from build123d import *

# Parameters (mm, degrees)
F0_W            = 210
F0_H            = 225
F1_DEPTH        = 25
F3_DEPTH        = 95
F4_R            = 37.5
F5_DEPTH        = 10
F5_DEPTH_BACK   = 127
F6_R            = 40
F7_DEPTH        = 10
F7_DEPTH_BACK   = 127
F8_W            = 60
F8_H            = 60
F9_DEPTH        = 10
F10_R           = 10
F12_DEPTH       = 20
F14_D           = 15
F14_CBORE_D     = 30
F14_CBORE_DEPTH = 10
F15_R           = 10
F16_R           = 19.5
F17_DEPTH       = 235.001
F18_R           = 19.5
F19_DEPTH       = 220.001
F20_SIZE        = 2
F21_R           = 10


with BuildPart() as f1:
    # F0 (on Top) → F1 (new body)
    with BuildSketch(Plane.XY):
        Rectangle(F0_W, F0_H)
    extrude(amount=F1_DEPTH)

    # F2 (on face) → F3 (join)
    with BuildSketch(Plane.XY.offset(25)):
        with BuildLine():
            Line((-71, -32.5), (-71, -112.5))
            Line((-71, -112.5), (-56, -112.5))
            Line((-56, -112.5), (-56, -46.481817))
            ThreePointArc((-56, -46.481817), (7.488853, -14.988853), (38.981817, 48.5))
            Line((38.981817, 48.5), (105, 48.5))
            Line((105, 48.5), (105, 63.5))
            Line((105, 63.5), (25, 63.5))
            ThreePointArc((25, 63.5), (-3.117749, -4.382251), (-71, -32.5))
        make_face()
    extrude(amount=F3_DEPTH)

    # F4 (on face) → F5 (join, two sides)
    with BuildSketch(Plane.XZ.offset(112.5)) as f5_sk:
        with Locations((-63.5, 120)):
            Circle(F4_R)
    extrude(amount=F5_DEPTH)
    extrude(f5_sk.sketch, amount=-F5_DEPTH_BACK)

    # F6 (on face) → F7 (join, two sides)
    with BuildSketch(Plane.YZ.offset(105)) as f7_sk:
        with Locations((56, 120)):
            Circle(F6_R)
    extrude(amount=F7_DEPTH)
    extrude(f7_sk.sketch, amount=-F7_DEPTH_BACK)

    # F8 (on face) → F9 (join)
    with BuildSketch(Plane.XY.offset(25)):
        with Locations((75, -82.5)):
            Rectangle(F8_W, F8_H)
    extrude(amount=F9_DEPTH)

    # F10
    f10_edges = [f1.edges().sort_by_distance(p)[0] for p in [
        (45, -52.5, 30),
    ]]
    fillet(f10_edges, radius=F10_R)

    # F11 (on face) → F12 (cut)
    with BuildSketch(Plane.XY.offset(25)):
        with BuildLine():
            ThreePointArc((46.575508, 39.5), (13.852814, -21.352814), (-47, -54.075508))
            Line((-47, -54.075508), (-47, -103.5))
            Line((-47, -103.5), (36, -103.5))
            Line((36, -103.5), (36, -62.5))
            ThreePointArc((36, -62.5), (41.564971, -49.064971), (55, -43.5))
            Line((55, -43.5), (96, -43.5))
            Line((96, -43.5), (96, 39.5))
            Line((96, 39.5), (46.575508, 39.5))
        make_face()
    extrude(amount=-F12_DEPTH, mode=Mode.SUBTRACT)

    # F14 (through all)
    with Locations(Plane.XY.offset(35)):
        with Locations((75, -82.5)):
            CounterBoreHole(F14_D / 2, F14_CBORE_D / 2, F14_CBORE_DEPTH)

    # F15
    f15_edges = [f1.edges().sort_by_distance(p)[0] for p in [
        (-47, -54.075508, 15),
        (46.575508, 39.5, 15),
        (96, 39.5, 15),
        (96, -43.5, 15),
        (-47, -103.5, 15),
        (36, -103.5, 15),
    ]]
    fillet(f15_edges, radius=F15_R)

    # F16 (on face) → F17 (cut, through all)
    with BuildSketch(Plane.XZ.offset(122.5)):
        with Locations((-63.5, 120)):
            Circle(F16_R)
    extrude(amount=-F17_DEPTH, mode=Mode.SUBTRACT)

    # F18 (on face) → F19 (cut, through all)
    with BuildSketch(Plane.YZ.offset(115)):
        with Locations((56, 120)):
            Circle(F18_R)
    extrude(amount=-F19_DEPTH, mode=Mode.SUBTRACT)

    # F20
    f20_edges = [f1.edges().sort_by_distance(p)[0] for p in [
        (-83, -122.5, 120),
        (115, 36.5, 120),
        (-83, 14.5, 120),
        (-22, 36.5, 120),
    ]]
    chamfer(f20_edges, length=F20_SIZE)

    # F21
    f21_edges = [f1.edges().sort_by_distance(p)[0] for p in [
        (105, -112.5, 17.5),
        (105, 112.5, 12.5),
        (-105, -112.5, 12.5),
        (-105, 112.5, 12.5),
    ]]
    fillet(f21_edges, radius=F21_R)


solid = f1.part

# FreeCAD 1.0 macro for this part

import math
import FreeCAD as App
import Part
import Sketcher
Q = App.Units.Quantity


def edges_at(feature, points):
    """Names of the edges that pass closest to the given points."""
    edges = feature.Shape.Edges
    near = lambda p: min(range(len(edges)), key=lambda i: edges[i].distToShape(Part.Vertex(*p))[0])
    return sorted({f"Edge{near(p) + 1}" for p in points})

doc = App.newDocument("Part")
body = doc.addObject("PartDesign::Body", "Body")

# Sketch on XY plane
sketch1 = doc.addObject("Sketcher::SketchObject", "Sketch")
body.addObject(sketch1)
sketch1.AttachmentSupport = (doc.XY_Plane, [""])
sketch1.MapMode = "FlatFace"
sketch1.addGeometry([
    Part.LineSegment(App.Vector(-105, 112, 0), App.Vector(-105, -112, 0)),
    Part.LineSegment(App.Vector(-105, -112, 0), App.Vector(105, -112, 0)),
    Part.LineSegment(App.Vector(105, -112, 0), App.Vector(105, 112, 0)),
    Part.LineSegment(App.Vector(105, 112, 0), App.Vector(-105, 112, 0)),
], False)
sketch1.addConstraint([
    Sketcher.Constraint("Coincident", 0, 2, 1, 1),
    Sketcher.Constraint("Coincident", 1, 2, 2, 1),
    Sketcher.Constraint("Coincident", 2, 2, 3, 1),
    Sketcher.Constraint("Coincident", 3, 2, 0, 1),
    Sketcher.Constraint("Vertical", 0),
    Sketcher.Constraint("Horizontal", 1),
    Sketcher.Constraint("Vertical", 2),
    Sketcher.Constraint("Horizontal", 3),
    Sketcher.Constraint("Symmetric", 0, 2, 2, 2, -1, 1),
    Sketcher.Constraint("DistanceX", 1, 1, 1, 2, Q("210 mm")),
    Sketcher.Constraint("DistanceY", 0, 2, 0, 1, Q("225 mm")),
])
pad1 = doc.addObject("PartDesign::Pad", "Pad")
body.addObject(pad1)
pad1.Profile = sketch1
pad1.Length = 25

# Sketch on XY plane
sketch2 = doc.addObject("Sketcher::SketchObject", "Sketch001")
body.addObject(sketch2)
sketch2.AttachmentSupport = (doc.XY_Plane, [""])
sketch2.MapMode = "FlatFace"
sketch2.AttachmentOffset = App.Placement(App.Vector(0, 0, 25), App.Rotation())
sketch2.addGeometry([
    Part.LineSegment(App.Vector(-71, -32, 0), App.Vector(-71, -112, 0)),  # 0
    Part.LineSegment(App.Vector(-71, -112, 0), App.Vector(-56, -112, 0)),  # 1
    Part.LineSegment(App.Vector(-56, -112, 0), App.Vector(-56, -46, 0)),  # 2
    Part.ArcOfCircle(Part.Circle(App.Vector(-71, 63, 0), App.Vector(0, 0, 1), 111), math.radians(-82), math.radians(-8)),  # 3
    Part.LineSegment(App.Vector(39, 48, 0), App.Vector(105, 48, 0)),  # 4
    Part.LineSegment(App.Vector(105, 48, 0), App.Vector(105, 64, 0)),  # 5
    Part.LineSegment(App.Vector(105, 64, 0), App.Vector(25, 64, 0)),  # 6
    Part.ArcOfCircle(Part.Circle(App.Vector(-71, 63, 0), App.Vector(0, 0, 1), 96), math.radians(-90), math.radians(0)),  # 7
], False)
sketch2.addConstraint([
    Sketcher.Constraint("Coincident", 0, 2, 1, 1),
    Sketcher.Constraint("Coincident", 1, 2, 2, 1),
    Sketcher.Constraint("Coincident", 2, 2, 3, 1),
    Sketcher.Constraint("Coincident", 3, 2, 4, 1),
    Sketcher.Constraint("Coincident", 4, 2, 5, 1),
    Sketcher.Constraint("Coincident", 5, 2, 6, 1),
    Sketcher.Constraint("Coincident", 6, 2, 7, 2),
    Sketcher.Constraint("Coincident", 7, 1, 0, 1),
    Sketcher.Constraint("Vertical", 0),
    Sketcher.Constraint("Horizontal", 1),
    Sketcher.Constraint("Vertical", 2),
    Sketcher.Constraint("Horizontal", 4),
    Sketcher.Constraint("Vertical", 5),
    Sketcher.Constraint("Horizontal", 6),
    Sketcher.Constraint("Coincident", 7, 3, 3, 3),
    Sketcher.Constraint("Horizontal", 7, 3, 5, 2),
    Sketcher.Constraint("Vertical", 7, 3, 0, 2),
    Sketcher.Constraint("Equal", 6, 0),
    Sketcher.Constraint("Equal", 4, 2),
    Sketcher.Constraint("Radius", 3, Q("111 mm")),
    Sketcher.Constraint("Radius", 7, Q("96 mm")),
    Sketcher.Constraint("DistanceX", 1, 1, 1, 2, Q("15 mm")),
    Sketcher.Constraint("DistanceX", 6, 2, 6, 1, Q("80 mm")),
    Sketcher.Constraint("DistanceX", 3, 3, -1, 1, Q("71 mm")),
    Sketcher.Constraint("DistanceY", -1, 1, 3, 3, Q("63.5 mm")),
])
pad2 = doc.addObject("PartDesign::Pad", "Pad001")
body.addObject(pad2)
pad2.Profile = sketch2
pad2.Length = 95

# Sketch on XZ plane
sketch3 = doc.addObject("Sketcher::SketchObject", "Sketch002")
body.addObject(sketch3)
sketch3.AttachmentSupport = (doc.XZ_Plane, [""])
sketch3.MapMode = "FlatFace"
sketch3.AttachmentOffset = App.Placement(App.Vector(0, 0, 112.5), App.Rotation())
sketch3.addGeometry(Part.Circle(App.Vector(-64, 120, 0), App.Vector(0, 0, 1), 38), False)
sketch3.addConstraint([
    Sketcher.Constraint("Diameter", 0, Q("75 mm")),
    Sketcher.Constraint("DistanceY", -1, 1, 0, 3, Q("120 mm")),
    Sketcher.Constraint("DistanceX", 0, 3, -1, 1, Q("63.5 mm")),
])
pad3 = doc.addObject("PartDesign::Pad", "Pad002")
body.addObject(pad3)
pad3.Profile = sketch3
pad3.Type = "TwoLengths"
pad3.Length = 10
pad3.Length2 = 127

# Sketch on YZ plane
sketch4 = doc.addObject("Sketcher::SketchObject", "Sketch003")
body.addObject(sketch4)
sketch4.AttachmentSupport = (doc.YZ_Plane, [""])
sketch4.MapMode = "FlatFace"
sketch4.AttachmentOffset = App.Placement(App.Vector(0, 0, 105), App.Rotation())
sketch4.addGeometry(Part.Circle(App.Vector(56, 120, 0), App.Vector(0, 0, 1), 40), False)
sketch4.addConstraint([
    Sketcher.Constraint("Diameter", 0, Q("80 mm")),
    Sketcher.Constraint("DistanceX", -1, 1, 0, 3, Q("56 mm")),
    Sketcher.Constraint("DistanceY", -1, 1, 0, 3, Q("120 mm")),
])
pad4 = doc.addObject("PartDesign::Pad", "Pad003")
body.addObject(pad4)
pad4.Profile = sketch4
pad4.Type = "TwoLengths"
pad4.Length = 10
pad4.Length2 = 127

# Sketch on XY plane
sketch5 = doc.addObject("Sketcher::SketchObject", "Sketch004")
body.addObject(sketch5)
sketch5.AttachmentSupport = (doc.XY_Plane, [""])
sketch5.MapMode = "FlatFace"
sketch5.AttachmentOffset = App.Placement(App.Vector(0, 0, 25), App.Rotation())
sketch5.addGeometry([
    Part.LineSegment(App.Vector(45, -52, 0), App.Vector(45, -112, 0)),
    Part.LineSegment(App.Vector(45, -112, 0), App.Vector(105, -112, 0)),
    Part.LineSegment(App.Vector(105, -112, 0), App.Vector(105, -52, 0)),
    Part.LineSegment(App.Vector(105, -52, 0), App.Vector(45, -52, 0)),
], False)
sketch5.addConstraint([
    Sketcher.Constraint("Coincident", 0, 2, 1, 1),
    Sketcher.Constraint("Coincident", 1, 2, 2, 1),
    Sketcher.Constraint("Coincident", 2, 2, 3, 1),
    Sketcher.Constraint("Coincident", 3, 2, 0, 1),
    Sketcher.Constraint("Vertical", 0),
    Sketcher.Constraint("Horizontal", 1),
    Sketcher.Constraint("Vertical", 2),
    Sketcher.Constraint("Horizontal", 3),
    Sketcher.Constraint("Equal", 3, 0),
    Sketcher.Constraint("DistanceX", 1, 1, 1, 2, Q("60 mm")),
    Sketcher.Constraint("DistanceX", -1, 1, 0, 2, Q("45 mm")),
    Sketcher.Constraint("DistanceY", 0, 2, -1, 1, Q("112.5 mm")),
])
pad5 = doc.addObject("PartDesign::Pad", "Pad004")
body.addObject(pad5)
pad5.Profile = sketch5
pad5.Length = 10
doc.recompute()

fillet = doc.addObject("PartDesign::Fillet", "Fillet")
body.addObject(fillet)
fillet.Base = (pad5, edges_at(pad5, [(45, -52.5, 30)]))
fillet.Radius = 10

# Sketch on XY plane
sketch6 = doc.addObject("Sketcher::SketchObject", "Sketch005")
body.addObject(sketch6)
sketch6.AttachmentSupport = (doc.XY_Plane, [""])
sketch6.MapMode = "FlatFace"
sketch6.AttachmentOffset = App.Placement(App.Vector(0, 0, 25), App.Rotation())
sketch6.addGeometry([
    Part.ArcOfCircle(Part.Circle(App.Vector(-71, 63, 0), App.Vector(0, 0, 1), 120), math.radians(-78), math.radians(-12)),  # 0
    Part.LineSegment(App.Vector(-47, -54, 0), App.Vector(-47, -104, 0)),  # 1
    Part.LineSegment(App.Vector(-47, -104, 0), App.Vector(36, -104, 0)),  # 2
    Part.LineSegment(App.Vector(36, -104, 0), App.Vector(36, -62, 0)),  # 3
    Part.ArcOfCircle(Part.Circle(App.Vector(55, -62, 0), App.Vector(0, 0, 1), 19), math.radians(90), math.radians(180)),  # 4
    Part.LineSegment(App.Vector(55, -44, 0), App.Vector(96, -44, 0)),  # 5
    Part.LineSegment(App.Vector(96, -44, 0), App.Vector(96, 40, 0)),  # 6
    Part.LineSegment(App.Vector(96, 40, 0), App.Vector(47, 40, 0)),  # 7
], False)
sketch6.addConstraint([
    Sketcher.Constraint("Coincident", 0, 1, 1, 1),
    Sketcher.Constraint("Coincident", 1, 2, 2, 1),
    Sketcher.Constraint("Coincident", 2, 2, 3, 1),
    Sketcher.Constraint("Tangent", 3, 2, 4, 2),
    Sketcher.Constraint("Tangent", 4, 1, 5, 1),
    Sketcher.Constraint("Coincident", 5, 2, 6, 1),
    Sketcher.Constraint("Coincident", 6, 2, 7, 1),
    Sketcher.Constraint("Coincident", 7, 2, 0, 2),
    Sketcher.Constraint("Vertical", 1),
    Sketcher.Constraint("Horizontal", 2),
    Sketcher.Constraint("Vertical", 3),
    Sketcher.Constraint("Horizontal", 5),
    Sketcher.Constraint("Vertical", 6),
    Sketcher.Constraint("Horizontal", 7),
    Sketcher.Constraint("Equal", 7, 1),
    Sketcher.Constraint("Equal", 5, 3),
    Sketcher.Constraint("Equal", 2, 6),
    Sketcher.Constraint("Radius", 0, Q("120 mm")),
    Sketcher.Constraint("Radius", 4, Q("18.999999 mm")),
    Sketcher.Constraint("DistanceX", 2, 1, 2, 2, Q("83 mm")),
    Sketcher.Constraint("DistanceX", 5, 1, 5, 2, Q("41 mm")),
    Sketcher.Constraint("DistanceX", 0, 3, -1, 1, Q("71 mm")),
    Sketcher.Constraint("DistanceX", -1, 1, 4, 3, Q("54.999999 mm")),
    Sketcher.Constraint("DistanceY", -1, 1, 0, 3, Q("63.5 mm")),
])
pocket1 = doc.addObject("PartDesign::Pocket", "Pocket")
body.addObject(pocket1)
pocket1.Profile = sketch6
pocket1.Length = 20

# Sketch on XY plane
sketch7 = doc.addObject("Sketcher::SketchObject", "Sketch006")
body.addObject(sketch7)
sketch7.AttachmentSupport = (doc.XY_Plane, [""])
sketch7.MapMode = "FlatFace"
sketch7.AttachmentOffset = App.Placement(App.Vector(0, 0, 35), App.Rotation())
sketch7.addGeometry(Part.Circle(App.Vector(75, -82, 0), App.Vector(0, 0, 1), 8), False)
sketch7.addConstraint([
    Sketcher.Constraint("Diameter", 0, Q("15 mm")),
    Sketcher.Constraint("DistanceX", -1, 1, 0, 3, Q("75 mm")),
    Sketcher.Constraint("DistanceY", 0, 3, -1, 1, Q("82.5 mm")),
])
doc.recompute()
hole = doc.addObject("PartDesign::Hole", "Hole")
body.addObject(hole)
hole.Profile = sketch7
hole.ThreadType = "None"
hole.Diameter = 15
hole.DepthType = "ThroughAll"
hole.HoleCutType = "Counterbore"
hole.HoleCutDiameter = 30
hole.HoleCutDepth = 10
doc.recompute()

fillet2 = doc.addObject("PartDesign::Fillet", "Fillet001")
body.addObject(fillet2)
fillet2.Base = (hole, edges_at(hole, [
    (-47, -54.076, 15),
    (46.576, 39.5, 15),
    (96, 39.5, 15),
    (96, -43.5, 15),
    (-47, -103.5, 15),
    (36, -103.5, 15),
]))
fillet2.Radius = 10

# Sketch on XZ plane
sketch8 = doc.addObject("Sketcher::SketchObject", "Sketch007")
body.addObject(sketch8)
sketch8.AttachmentSupport = (doc.XZ_Plane, [""])
sketch8.MapMode = "FlatFace"
sketch8.AttachmentOffset = App.Placement(App.Vector(0, 0, 122.5), App.Rotation())
sketch8.addGeometry(Part.Circle(App.Vector(-64, 120, 0), App.Vector(0, 0, 1), 20), False)
sketch8.addConstraint([
    Sketcher.Constraint("Diameter", 0, Q("39 mm")),
    Sketcher.Constraint("DistanceY", -1, 1, 0, 3, Q("120 mm")),
    Sketcher.Constraint("DistanceX", 0, 3, -1, 1, Q("63.5 mm")),
])
pocket2 = doc.addObject("PartDesign::Pocket", "Pocket001")
body.addObject(pocket2)
pocket2.Profile = sketch8
pocket2.Type = "ThroughAll"

# Sketch on YZ plane
sketch9 = doc.addObject("Sketcher::SketchObject", "Sketch008")
body.addObject(sketch9)
sketch9.AttachmentSupport = (doc.YZ_Plane, [""])
sketch9.MapMode = "FlatFace"
sketch9.AttachmentOffset = App.Placement(App.Vector(0, 0, 115), App.Rotation())
sketch9.addGeometry(Part.Circle(App.Vector(56, 120, 0), App.Vector(0, 0, 1), 20), False)
sketch9.addConstraint([
    Sketcher.Constraint("Diameter", 0, Q("39 mm")),
    Sketcher.Constraint("DistanceX", -1, 1, 0, 3, Q("56 mm")),
    Sketcher.Constraint("DistanceY", -1, 1, 0, 3, Q("120 mm")),
])
pocket3 = doc.addObject("PartDesign::Pocket", "Pocket002")
body.addObject(pocket3)
pocket3.Profile = sketch9
pocket3.Type = "ThroughAll"
doc.recompute()

chamfer = doc.addObject("PartDesign::Chamfer", "Chamfer")
body.addObject(chamfer)
chamfer.Base = (pocket3, edges_at(pocket3, [
    (-83, -122.5, 120),
    (115, 36.5, 120),
    (-83, 14.5, 120),
    (-22, 36.5, 120),
]))
chamfer.Size = 2
doc.recompute()

fillet3 = doc.addObject("PartDesign::Fillet", "Fillet002")
body.addObject(fillet3)
fillet3.Base = (chamfer, edges_at(chamfer, [
    (105, -112.5, 17.5),
    (105, 112.5, 12.5),
    (-105, -112.5, 12.5),
    (-105, 112.5, 12.5),
]))
fillet3.Radius = 10

doc.recompute()
